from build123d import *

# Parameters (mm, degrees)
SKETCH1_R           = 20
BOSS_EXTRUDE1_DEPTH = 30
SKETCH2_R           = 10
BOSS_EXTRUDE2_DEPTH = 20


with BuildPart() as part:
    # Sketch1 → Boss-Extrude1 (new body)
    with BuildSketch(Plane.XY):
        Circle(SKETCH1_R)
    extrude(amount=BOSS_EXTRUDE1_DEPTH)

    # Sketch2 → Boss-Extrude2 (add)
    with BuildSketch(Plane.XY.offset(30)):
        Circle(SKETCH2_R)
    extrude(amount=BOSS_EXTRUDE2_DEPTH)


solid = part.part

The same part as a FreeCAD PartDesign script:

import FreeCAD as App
import Part
import Sketcher

V = App.Vector

doc = App.newDocument("Part")
body = doc.addObject("PartDesign::Body", "Body")

sketch1 = body.newObject("Sketcher::SketchObject", "Sketch")
sketch1.AttachmentSupport = (doc.getObject("XY_Plane"), [""])
sketch1.MapMode = "FlatFace"
sketch1.addGeometry(Part.Circle(V(0, 0, 0), V(0, 0, 1), 20), False)
sketch1.addConstraint(Sketcher.Constraint("Coincident", 0, 3, -1, 1))
sketch1.addConstraint(Sketcher.Constraint("Diameter", 0, 40.0))
pad1 = body.newObject("PartDesign::Pad", "Pad")
pad1.Profile = sketch1
pad1.Length = 30

sketch2 = body.newObject("Sketcher::SketchObject", "Sketch001")
sketch2.AttachmentSupport = (doc.getObject("XY_Plane"), [""])
sketch2.MapMode = "FlatFace"
sketch2.AttachmentOffset = App.Placement(V(0, 0, 30), App.Rotation())
sketch2.addGeometry(Part.Circle(V(0, 0, 0), V(0, 0, 1), 10), False)
sketch2.addConstraint(Sketcher.Constraint("Coincident", 0, 3, -1, 1))
sketch2.addConstraint(Sketcher.Constraint("Diameter", 0, 20.0))
pad2 = body.newObject("PartDesign::Pad", "Pad001")
pad2.Profile = sketch2
pad2.Length = 20

doc.recompute()
